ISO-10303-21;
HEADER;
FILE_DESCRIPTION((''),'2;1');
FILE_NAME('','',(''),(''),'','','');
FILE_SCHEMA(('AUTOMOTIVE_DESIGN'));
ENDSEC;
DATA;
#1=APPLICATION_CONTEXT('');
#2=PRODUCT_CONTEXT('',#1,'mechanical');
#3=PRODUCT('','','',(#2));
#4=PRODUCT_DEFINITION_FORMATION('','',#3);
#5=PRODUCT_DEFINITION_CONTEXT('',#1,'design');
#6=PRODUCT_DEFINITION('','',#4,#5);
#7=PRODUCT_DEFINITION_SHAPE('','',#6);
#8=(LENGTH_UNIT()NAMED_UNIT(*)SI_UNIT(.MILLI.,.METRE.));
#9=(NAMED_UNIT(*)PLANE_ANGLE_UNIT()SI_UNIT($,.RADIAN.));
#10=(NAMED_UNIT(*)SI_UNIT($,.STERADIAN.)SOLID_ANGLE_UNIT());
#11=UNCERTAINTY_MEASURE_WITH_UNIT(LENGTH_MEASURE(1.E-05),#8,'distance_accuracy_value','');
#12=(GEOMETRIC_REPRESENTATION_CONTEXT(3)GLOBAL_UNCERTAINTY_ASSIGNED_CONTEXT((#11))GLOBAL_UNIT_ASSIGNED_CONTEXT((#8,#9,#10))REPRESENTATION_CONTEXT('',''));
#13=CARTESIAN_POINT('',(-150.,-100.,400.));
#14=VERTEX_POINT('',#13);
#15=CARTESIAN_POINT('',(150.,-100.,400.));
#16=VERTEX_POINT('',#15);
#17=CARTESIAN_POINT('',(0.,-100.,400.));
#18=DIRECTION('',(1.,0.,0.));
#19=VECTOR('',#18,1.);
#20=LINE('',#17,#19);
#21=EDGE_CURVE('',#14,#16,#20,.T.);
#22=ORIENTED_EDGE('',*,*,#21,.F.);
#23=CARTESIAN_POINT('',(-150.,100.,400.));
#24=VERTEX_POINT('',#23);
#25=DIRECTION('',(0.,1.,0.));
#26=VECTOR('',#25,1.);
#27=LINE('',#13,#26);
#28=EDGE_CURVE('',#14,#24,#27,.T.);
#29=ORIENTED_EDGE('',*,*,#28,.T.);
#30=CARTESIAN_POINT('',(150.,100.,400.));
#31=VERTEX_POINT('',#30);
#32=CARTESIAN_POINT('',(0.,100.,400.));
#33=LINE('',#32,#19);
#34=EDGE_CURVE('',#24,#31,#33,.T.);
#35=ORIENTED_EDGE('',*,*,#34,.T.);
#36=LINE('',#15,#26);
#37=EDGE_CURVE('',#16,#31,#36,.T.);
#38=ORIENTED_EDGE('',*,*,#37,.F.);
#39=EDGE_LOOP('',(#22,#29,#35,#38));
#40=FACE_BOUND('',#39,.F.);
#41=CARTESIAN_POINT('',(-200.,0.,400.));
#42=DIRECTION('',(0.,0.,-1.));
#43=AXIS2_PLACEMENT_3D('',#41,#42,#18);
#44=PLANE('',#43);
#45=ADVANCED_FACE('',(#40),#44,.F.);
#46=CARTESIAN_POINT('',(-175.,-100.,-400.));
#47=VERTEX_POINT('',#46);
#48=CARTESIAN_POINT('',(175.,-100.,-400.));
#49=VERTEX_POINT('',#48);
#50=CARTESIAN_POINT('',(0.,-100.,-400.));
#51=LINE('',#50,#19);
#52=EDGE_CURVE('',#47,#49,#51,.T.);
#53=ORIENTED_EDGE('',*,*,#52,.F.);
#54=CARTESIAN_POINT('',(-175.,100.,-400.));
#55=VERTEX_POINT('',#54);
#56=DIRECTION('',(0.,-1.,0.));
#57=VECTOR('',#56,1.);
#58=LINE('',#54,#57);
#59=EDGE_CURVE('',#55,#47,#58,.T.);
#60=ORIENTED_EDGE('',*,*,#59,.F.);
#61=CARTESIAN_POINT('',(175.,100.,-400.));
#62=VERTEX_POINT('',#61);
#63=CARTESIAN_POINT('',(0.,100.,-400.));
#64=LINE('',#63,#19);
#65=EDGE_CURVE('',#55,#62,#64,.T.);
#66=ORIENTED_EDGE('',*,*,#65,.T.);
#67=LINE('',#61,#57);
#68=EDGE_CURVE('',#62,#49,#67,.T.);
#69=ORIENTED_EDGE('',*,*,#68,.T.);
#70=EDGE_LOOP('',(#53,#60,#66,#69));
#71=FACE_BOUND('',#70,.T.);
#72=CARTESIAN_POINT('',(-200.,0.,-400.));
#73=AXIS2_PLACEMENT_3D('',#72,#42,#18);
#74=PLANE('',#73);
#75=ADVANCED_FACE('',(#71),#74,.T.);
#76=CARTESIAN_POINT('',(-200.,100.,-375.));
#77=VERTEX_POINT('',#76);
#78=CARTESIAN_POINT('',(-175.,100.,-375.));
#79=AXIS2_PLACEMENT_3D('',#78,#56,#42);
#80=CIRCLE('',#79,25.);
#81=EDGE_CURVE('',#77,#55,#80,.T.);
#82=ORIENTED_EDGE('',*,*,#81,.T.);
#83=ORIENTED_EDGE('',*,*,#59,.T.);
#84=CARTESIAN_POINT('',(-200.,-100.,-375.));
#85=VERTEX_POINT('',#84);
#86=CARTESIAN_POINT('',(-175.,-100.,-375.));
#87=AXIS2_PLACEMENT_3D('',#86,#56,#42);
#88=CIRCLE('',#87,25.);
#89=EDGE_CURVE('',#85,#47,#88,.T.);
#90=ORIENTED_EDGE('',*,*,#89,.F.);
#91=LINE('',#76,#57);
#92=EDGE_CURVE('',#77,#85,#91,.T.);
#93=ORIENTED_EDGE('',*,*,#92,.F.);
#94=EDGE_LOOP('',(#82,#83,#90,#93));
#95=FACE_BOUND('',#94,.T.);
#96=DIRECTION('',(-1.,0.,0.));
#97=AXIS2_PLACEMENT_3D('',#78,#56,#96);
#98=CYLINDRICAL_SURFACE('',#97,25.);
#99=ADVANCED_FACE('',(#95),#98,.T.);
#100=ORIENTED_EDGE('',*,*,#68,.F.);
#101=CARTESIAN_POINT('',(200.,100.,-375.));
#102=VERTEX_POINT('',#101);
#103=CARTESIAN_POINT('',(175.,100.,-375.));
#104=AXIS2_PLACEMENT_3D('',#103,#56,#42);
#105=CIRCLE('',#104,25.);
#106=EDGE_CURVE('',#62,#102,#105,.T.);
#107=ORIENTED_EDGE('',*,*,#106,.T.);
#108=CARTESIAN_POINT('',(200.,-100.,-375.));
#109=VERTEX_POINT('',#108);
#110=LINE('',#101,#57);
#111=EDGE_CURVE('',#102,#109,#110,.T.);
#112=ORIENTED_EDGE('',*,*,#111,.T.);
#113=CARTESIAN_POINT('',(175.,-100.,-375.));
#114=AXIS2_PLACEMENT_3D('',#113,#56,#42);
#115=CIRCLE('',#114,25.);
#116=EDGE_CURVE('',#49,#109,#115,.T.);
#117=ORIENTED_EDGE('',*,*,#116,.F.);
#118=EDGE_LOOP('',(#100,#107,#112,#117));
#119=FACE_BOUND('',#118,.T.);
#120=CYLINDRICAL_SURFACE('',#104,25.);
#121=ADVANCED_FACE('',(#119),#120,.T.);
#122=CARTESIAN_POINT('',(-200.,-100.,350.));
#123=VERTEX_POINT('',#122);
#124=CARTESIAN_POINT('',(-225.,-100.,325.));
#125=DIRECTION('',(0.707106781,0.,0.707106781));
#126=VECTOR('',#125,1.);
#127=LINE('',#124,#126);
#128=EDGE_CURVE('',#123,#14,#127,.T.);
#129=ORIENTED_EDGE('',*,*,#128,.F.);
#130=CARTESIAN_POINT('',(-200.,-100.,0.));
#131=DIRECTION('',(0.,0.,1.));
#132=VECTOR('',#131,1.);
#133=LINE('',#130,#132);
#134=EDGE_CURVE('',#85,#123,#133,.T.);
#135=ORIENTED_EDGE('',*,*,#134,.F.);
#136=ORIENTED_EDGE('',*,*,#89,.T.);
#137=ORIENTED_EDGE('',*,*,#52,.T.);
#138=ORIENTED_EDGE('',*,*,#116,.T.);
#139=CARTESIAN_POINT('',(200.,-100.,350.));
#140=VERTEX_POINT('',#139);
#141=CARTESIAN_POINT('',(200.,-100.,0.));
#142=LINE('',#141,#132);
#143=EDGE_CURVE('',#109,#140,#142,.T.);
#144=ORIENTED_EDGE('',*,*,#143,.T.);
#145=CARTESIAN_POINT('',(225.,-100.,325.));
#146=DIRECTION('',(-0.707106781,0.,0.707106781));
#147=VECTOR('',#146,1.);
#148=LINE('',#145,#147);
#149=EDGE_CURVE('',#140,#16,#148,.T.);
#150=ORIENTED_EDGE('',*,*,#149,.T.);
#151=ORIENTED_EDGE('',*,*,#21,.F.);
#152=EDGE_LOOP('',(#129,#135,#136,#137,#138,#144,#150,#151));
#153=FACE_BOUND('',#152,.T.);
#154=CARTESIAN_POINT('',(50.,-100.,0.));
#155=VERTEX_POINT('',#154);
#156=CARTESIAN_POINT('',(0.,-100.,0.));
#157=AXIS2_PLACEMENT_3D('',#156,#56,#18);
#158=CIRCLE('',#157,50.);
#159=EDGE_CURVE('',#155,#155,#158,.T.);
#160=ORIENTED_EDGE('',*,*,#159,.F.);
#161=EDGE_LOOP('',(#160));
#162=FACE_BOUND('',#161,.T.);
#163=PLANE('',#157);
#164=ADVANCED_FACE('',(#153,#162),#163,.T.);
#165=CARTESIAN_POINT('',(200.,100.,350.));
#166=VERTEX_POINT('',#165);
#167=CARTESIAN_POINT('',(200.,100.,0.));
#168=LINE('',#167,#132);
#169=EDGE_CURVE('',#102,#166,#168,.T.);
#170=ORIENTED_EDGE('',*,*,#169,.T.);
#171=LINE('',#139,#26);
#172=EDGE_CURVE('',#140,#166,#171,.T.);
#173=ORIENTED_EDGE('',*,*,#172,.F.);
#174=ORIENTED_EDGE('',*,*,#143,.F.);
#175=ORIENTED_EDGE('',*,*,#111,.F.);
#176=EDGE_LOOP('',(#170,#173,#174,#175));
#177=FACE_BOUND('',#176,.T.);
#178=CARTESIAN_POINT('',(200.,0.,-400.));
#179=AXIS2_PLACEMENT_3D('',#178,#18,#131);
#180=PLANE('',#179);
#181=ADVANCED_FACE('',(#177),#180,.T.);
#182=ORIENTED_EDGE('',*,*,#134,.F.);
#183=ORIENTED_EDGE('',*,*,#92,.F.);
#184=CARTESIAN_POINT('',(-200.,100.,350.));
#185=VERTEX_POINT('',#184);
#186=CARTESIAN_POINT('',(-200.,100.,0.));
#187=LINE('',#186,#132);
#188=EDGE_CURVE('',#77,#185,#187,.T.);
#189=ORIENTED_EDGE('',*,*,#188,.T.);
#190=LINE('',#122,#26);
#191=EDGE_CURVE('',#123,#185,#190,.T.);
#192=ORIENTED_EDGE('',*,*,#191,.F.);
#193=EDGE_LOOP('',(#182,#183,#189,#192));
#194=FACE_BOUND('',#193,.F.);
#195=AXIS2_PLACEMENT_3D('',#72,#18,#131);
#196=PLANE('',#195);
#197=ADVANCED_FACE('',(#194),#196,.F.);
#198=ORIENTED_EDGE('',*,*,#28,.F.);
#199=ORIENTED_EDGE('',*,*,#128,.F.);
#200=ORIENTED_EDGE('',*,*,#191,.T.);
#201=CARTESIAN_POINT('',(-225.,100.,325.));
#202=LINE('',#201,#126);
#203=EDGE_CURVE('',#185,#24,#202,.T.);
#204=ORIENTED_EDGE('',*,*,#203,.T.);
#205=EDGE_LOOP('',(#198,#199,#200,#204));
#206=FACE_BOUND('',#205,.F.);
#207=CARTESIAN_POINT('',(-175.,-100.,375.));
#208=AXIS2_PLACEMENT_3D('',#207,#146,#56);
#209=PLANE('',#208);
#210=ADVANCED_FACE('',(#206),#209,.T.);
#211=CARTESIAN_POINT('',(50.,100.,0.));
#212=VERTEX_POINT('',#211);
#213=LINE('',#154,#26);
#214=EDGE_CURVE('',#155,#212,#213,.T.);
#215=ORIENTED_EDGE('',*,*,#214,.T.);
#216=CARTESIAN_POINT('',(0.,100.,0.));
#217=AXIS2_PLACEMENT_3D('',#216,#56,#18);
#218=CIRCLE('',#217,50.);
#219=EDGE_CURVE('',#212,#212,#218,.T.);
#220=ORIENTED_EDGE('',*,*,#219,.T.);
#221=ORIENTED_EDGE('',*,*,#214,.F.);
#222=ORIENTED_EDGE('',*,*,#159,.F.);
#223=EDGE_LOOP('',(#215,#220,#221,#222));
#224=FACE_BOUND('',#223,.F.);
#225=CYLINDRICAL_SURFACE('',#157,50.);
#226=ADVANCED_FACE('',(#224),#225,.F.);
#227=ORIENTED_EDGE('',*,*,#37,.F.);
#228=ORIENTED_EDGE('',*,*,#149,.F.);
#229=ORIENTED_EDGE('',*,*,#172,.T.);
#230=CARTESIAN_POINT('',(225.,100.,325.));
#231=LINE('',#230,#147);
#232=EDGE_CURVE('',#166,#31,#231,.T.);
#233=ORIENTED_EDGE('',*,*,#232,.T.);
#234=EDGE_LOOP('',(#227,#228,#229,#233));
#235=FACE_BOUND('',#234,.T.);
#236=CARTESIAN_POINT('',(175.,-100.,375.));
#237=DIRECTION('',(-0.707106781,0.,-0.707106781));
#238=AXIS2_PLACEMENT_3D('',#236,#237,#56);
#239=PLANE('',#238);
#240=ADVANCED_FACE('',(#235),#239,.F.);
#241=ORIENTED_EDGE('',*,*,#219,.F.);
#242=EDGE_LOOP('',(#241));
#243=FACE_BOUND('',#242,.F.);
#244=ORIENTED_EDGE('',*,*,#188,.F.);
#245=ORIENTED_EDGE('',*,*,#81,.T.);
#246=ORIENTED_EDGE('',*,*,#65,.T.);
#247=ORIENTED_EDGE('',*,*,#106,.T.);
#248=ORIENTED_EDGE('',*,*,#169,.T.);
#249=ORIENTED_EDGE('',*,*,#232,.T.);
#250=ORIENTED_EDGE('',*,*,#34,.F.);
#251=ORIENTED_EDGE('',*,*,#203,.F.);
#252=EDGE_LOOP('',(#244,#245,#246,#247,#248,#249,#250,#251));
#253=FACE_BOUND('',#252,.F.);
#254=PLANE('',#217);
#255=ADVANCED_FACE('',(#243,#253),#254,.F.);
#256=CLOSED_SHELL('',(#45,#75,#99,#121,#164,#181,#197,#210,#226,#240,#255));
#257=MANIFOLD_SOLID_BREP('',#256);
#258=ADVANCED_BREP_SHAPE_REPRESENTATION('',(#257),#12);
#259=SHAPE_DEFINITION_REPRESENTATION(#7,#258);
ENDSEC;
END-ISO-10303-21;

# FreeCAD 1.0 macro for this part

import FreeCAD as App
import Part
import Sketcher
from FreeCAD import Vector


def edges_at(feature, points):
    """Names of the edges that pass closest to the given points."""
    edges = feature.Shape.Edges
    near = lambda p: min(range(len(edges)), key=lambda i: edges[i].distToShape(Part.Vertex(*p))[0])
    return sorted({f"Edge{near(p) + 1}" for p in points})

doc = App.newDocument("Part")
body = doc.addObject("PartDesign::Body", "Body")

# Sketch on XZ plane
sketch1 = body.newObject("Sketcher::SketchObject", "Sketch")
sketch1.AttachmentSupport = (doc.getObject("XZ_Plane"), [""])
sketch1.MapMode = "FlatFace"
sketch1.addGeometry([
    Part.LineSegment(Vector(-200, 400, 0), Vector(-200, -400, 0)),
    Part.LineSegment(Vector(-200, -400, 0), Vector(200, -400, 0)),
    Part.LineSegment(Vector(200, -400, 0), Vector(200, 400, 0)),
    Part.LineSegment(Vector(200, 400, 0), Vector(-200, 400, 0)),
], False)
sketch1.addConstraint([
    Sketcher.Constraint("Coincident", 0, 2, 1, 1),
    Sketcher.Constraint("Coincident", 1, 2, 2, 1),
    Sketcher.Constraint("Coincident", 2, 2, 3, 1),
    Sketcher.Constraint("Coincident", 3, 2, 0, 1),
    Sketcher.Constraint("Vertical", 0),
    Sketcher.Constraint("Horizontal", 1),
    Sketcher.Constraint("Vertical", 2),
    Sketcher.Constraint("Horizontal", 3),
    Sketcher.Constraint("Symmetric", 0, 2, 2, 2, -1, 1),
    Sketcher.Constraint("DistanceX", 1, 1, 1, 2, 400.0),
    Sketcher.Constraint("DistanceY", 0, 2, 0, 1, 800.0),
])
pad1 = body.newObject("PartDesign::Pad", "Pad")
pad1.Profile = sketch1
pad1.Length = 200
pad1.Midplane = True
doc.recompute()

chamfer = body.newObject("PartDesign::Chamfer", "Chamfer")
chamfer.Base = (pad1, edges_at(pad1, [(-200, 0, 400), (200, 0, 400)]))
chamfer.Size = 50
doc.recompute()

fillet = body.newObject("PartDesign::Fillet", "Fillet")
fillet.Base = (chamfer, edges_at(chamfer, [(-200, 0, -400), (200, 0, -400)]))
fillet.Radius = 25

# Sketch on XZ plane
sketch2 = body.newObject("Sketcher::SketchObject", "Sketch001")
sketch2.AttachmentSupport = (doc.getObject("XZ_Plane"), [""])
sketch2.MapMode = "FlatFace"
sketch2.AttachmentOffset = App.Placement(Vector(0, 0, 100), App.Rotation())
sketch2.addGeometry(Part.Circle(Vector(0, 0, 0), Vector(0, 0, 1), 50), False)
sketch2.addConstraint([
    Sketcher.Constraint("Coincident", 0, 3, -1, 1),
    Sketcher.Constraint("Diameter", 0, 100.0),
])
pocket1 = body.newObject("PartDesign::Pocket", "Pocket")
pocket1.Profile = sketch2
pocket1.Length = 230

doc.recompute()
